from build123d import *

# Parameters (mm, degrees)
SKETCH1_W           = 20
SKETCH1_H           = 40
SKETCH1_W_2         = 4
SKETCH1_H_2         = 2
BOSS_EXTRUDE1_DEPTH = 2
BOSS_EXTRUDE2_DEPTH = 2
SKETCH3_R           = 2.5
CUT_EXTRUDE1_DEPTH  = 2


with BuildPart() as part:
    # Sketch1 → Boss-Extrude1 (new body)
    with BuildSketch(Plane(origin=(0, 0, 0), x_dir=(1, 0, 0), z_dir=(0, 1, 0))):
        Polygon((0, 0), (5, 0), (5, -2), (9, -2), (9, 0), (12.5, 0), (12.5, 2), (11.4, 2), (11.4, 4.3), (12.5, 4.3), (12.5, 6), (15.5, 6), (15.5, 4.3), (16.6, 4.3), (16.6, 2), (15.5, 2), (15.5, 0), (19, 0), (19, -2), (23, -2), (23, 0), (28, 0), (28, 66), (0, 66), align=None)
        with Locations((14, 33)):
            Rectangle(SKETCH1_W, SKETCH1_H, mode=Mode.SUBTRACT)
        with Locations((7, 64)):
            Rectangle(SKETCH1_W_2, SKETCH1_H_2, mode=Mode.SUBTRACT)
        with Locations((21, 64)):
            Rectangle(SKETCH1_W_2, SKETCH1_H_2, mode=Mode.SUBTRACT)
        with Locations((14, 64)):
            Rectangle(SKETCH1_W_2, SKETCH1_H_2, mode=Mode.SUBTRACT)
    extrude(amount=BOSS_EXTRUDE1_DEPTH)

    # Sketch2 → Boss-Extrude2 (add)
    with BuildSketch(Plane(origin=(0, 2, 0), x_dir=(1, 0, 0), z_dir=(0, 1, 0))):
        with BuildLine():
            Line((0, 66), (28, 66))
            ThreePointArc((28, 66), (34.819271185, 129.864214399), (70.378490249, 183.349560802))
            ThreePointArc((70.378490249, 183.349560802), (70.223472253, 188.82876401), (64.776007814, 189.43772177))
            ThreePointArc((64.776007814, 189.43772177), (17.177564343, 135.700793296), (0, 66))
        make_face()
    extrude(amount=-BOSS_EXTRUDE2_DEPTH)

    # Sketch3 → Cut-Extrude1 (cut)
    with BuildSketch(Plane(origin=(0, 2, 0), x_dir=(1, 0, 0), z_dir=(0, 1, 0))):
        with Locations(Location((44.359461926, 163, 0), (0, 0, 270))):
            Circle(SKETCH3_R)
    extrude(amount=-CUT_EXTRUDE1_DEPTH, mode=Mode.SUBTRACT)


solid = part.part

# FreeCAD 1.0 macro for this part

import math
import FreeCAD as App
import Part
import Sketcher
from FreeCAD import Vector


def add_polygon(sketch, points):
    """Adds a closed chain of lines whose ends are joined by coincident constraints."""
    first, n = sketch.GeometryCount, len(points)
    for a, b in zip(points, points[1:] + points[:1]):
        sketch.addGeometry(Part.LineSegment(App.Vector(*a, 0), App.Vector(*b, 0)), False)
    for i in range(n):
        sketch.addConstraint(Sketcher.Constraint("Coincident", first + i, 2, first + (i + 1) % n, 1))

doc = App.newDocument("Part")
params = doc.addObject("Spreadsheet::Sheet", "Params")
for row, (alias, value) in enumerate([
    ("sketch1_width", "5 mm"),
    ("sketch1_width2", "4 mm"),
    ("sketch1_width3", "3 mm"),
    ("sketch1_width4", "28 mm"),
    ("sketch1_width5", "20 mm"),
    ("pad1_length", "2 mm"),
    ("sketch2_radius", "135 mm"),
    ("sketch2_radius2", "150 mm"),
    ("sketch2_width", "28 mm"),
    ("pad2_length", "2 mm"),
    ("sketch3_diameter", "5 mm"),
    ("pocket1_length", "2 mm"),
], start=1):
    params.set(f"A{row}", alias)
    params.set(f"B{row}", "=" + value)
    params.setAlias(f"B{row}", alias)

body = doc.addObject("PartDesign::Body", "Body")

# Sketch on XZ plane
sketch1 = doc.addObject("Sketcher::SketchObject", "Sketch")
body.addObject(sketch1)
sketch1.AttachmentSupport = (doc.XZ_Plane, [""])
sketch1.MapMode = "FlatFace"
add_polygon(sketch1, [(0, 0), (5, 0), (5, 2), (9, 2), (9, 0), (12.5, 0), (12.5, -2), (11.4, -2), (11.4, -4.3), (12.5, -4.3), (12.5, -6), (15.5, -6), (15.5, -4.3), (16.6, -4.3), (16.6, -2), (15.5, -2), (15.5, 0), (19, 0), (19, 2), (23, 2), (23, 0), (28, 0), (28, -66), (0, -66)])  # lines 0-23
add_polygon(sketch1, [(24, -13), (4, -13), (4, -53), (24, -53)])  # lines 24-27
add_polygon(sketch1, [(9, -63), (5, -63), (5, -65), (9, -65)])  # lines 28-31
add_polygon(sketch1, [(16, -63), (12, -63), (12, -65), (16, -65)])  # lines 32-35
add_polygon(sketch1, [(23, -63), (19, -63), (19, -65), (23, -65)])  # lines 36-39
sketch1.addConstraint(Sketcher.Constraint("Horizontal", 0))
sketch1.addConstraint(Sketcher.Constraint("Vertical", 1))
sketch1.addConstraint(Sketcher.Constraint("Horizontal", 2))
sketch1.addConstraint(Sketcher.Constraint("Vertical", 3))
sketch1.addConstraint(Sketcher.Constraint("Horizontal", 4))
sketch1.addConstraint(Sketcher.Constraint("Vertical", 5))
sketch1.addConstraint(Sketcher.Constraint("Horizontal", 6))
sketch1.addConstraint(Sketcher.Constraint("Vertical", 7))
sketch1.addConstraint(Sketcher.Constraint("Horizontal", 8))
sketch1.addConstraint(Sketcher.Constraint("Vertical", 9))
sketch1.addConstraint(Sketcher.Constraint("Horizontal", 10))
sketch1.addConstraint(Sketcher.Constraint("Vertical", 11))
sketch1.addConstraint(Sketcher.Constraint("Horizontal", 12))
sketch1.addConstraint(Sketcher.Constraint("Vertical", 13))
sketch1.addConstraint(Sketcher.Constraint("Horizontal", 14))
sketch1.addConstraint(Sketcher.Constraint("Vertical", 15))
sketch1.addConstraint(Sketcher.Constraint("Horizontal", 16))
sketch1.addConstraint(Sketcher.Constraint("Vertical", 17))
sketch1.addConstraint(Sketcher.Constraint("Horizontal", 18))
sketch1.addConstraint(Sketcher.Constraint("Vertical", 19))
sketch1.addConstraint(Sketcher.Constraint("Horizontal", 20))
sketch1.addConstraint(Sketcher.Constraint("Vertical", 21))
sketch1.addConstraint(Sketcher.Constraint("Horizontal", 22))
sketch1.addConstraint(Sketcher.Constraint("Vertical", 23))
sketch1.addConstraint(Sketcher.Constraint("Horizontal", 24))
sketch1.addConstraint(Sketcher.Constraint("Vertical", 25))
sketch1.addConstraint(Sketcher.Constraint("Horizontal", 26))
sketch1.addConstraint(Sketcher.Constraint("Vertical", 27))
sketch1.addConstraint(Sketcher.Constraint("Horizontal", 28))
sketch1.addConstraint(Sketcher.Constraint("Vertical", 29))
sketch1.addConstraint(Sketcher.Constraint("Horizontal", 30))
sketch1.addConstraint(Sketcher.Constraint("Vertical", 31))
sketch1.addConstraint(Sketcher.Constraint("Horizontal", 32))
sketch1.addConstraint(Sketcher.Constraint("Vertical", 33))
sketch1.addConstraint(Sketcher.Constraint("Horizontal", 34))
sketch1.addConstraint(Sketcher.Constraint("Vertical", 35))
sketch1.addConstraint(Sketcher.Constraint("Horizontal", 36))
sketch1.addConstraint(Sketcher.Constraint("Vertical", 37))
sketch1.addConstraint(Sketcher.Constraint("Horizontal", 38))
sketch1.addConstraint(Sketcher.Constraint("Vertical", 39))
sketch1.addConstraint(Sketcher.Constraint("Coincident", 23, 2, -1, 1))
sketch1.addConstraint(Sketcher.Constraint("PointOnObject", 3, 2, -1))
sketch1.addConstraint(Sketcher.Constraint("PointOnObject", 15, 2, -1))
sketch1.addConstraint(Sketcher.Constraint("PointOnObject", 19, 2, -1))
sketch1.addConstraint(Sketcher.Constraint("Horizontal", 8, 2, 11, 2))
sketch1.addConstraint(Sketcher.Constraint("Horizontal", 6, 2, 13, 2))
sketch1.addConstraint(Sketcher.Constraint("Horizontal", 2, 2, 17, 2))
sketch1.addConstraint(Sketcher.Constraint("Horizontal", 31, 2, 32, 2))
sketch1.addConstraint(Sketcher.Constraint("Horizontal", 30, 2, 33, 2))
sketch1.addConstraint(Sketcher.Constraint("Horizontal", 35, 2, 36, 2))
sketch1.addConstraint(Sketcher.Constraint("Horizontal", 34, 2, 37, 2))
sketch1.addConstraint(Sketcher.Constraint("Vertical", 5, 2, 8, 2))
sketch1.addConstraint(Sketcher.Constraint("Vertical", 11, 2, 14, 2))
sketch1.addConstraint(Sketcher.Constraint("Vertical", 1, 2, 28, 2))
sketch1.addConstraint(Sketcher.Constraint("Vertical", 3, 2, 30, 2))
sketch1.addConstraint(Sketcher.Constraint("Vertical", 17, 2, 36, 2))
sketch1.addConstraint(Sketcher.Constraint("Vertical", 19, 2, 38, 2))
sketch1.addConstraint(Sketcher.Constraint("Equal", 8, 12))
sketch1.addConstraint(Sketcher.Constraint("Equal", 4, 16))
sketch1.addConstraint(Sketcher.Constraint("Equal", 2, 18))
sketch1.addConstraint(Sketcher.Constraint("Equal", 0, 20))
sketch1.addConstraint(Sketcher.Constraint("Equal", 30, 32))
sketch1.addConstraint(Sketcher.Constraint("Equal", 3, 5))
sketch1.addConstraint(Sketcher.Constraint("Equal", 19, 29))
sketch1.addConstraint(Sketcher.Constraint("DistanceX", 0, 1, 0, 2, 5.0))
sketch1.addConstraint(Sketcher.Constraint("DistanceX", 2, 1, 2, 2, 4.0))
sketch1.addConstraint(Sketcher.Constraint("DistanceX", 10, 1, 10, 2, 3.0))
sketch1.addConstraint(Sketcher.Constraint("DistanceX", 22, 2, 22, 1, 28.0))
sketch1.addConstraint(Sketcher.Constraint("DistanceX", 24, 2, 24, 1, 20.0))
sketch1.addConstraint(Sketcher.Constraint("DistanceY", 1, 1, 1, 2, 2.0))
sketch1.addConstraint(Sketcher.Constraint("DistanceY", 21, 2, 21, 1, 66.0))
sketch1.addConstraint(Sketcher.Constraint("DistanceY", 25, 2, 25, 1, 40.0))
sketch1.addConstraint(Sketcher.Constraint("DistanceX", 6, 2, 6, 1, 1.1))
sketch1.addConstraint(Sketcher.Constraint("DistanceY", 7, 2, 7, 1, 2.3))
sketch1.addConstraint(Sketcher.Constraint("DistanceY", 9, 2, 9, 1, 1.7))
sketch1.addConstraint(Sketcher.Constraint("DistanceX", -1, 1, 24, 2, 4.0))
sketch1.addConstraint(Sketcher.Constraint("DistanceY", 24, 2, -1, 1, 13.0))
sketch1.addConstraint(Sketcher.Constraint("DistanceY", 28, 2, -1, 1, 63.0))
sketch1.addConstraint(Sketcher.Constraint("DistanceX", -1, 1, 32, 2, 12.0))
sketch1.setExpression("Constraints[104]", "Params.sketch1_width")
sketch1.setExpression("Constraints[105]", "Params.sketch1_width2")
sketch1.setExpression("Constraints[106]", "Params.sketch1_width3")
sketch1.setExpression("Constraints[107]", "Params.sketch1_width4")
sketch1.setExpression("Constraints[108]", "Params.sketch1_width5")
pad1 = doc.addObject("PartDesign::Pad", "Pad")
body.addObject(pad1)
pad1.Profile = sketch1
pad1.setExpression("Length", "Params.pad1_length")
pad1.Reversed = True

# Sketch on XZ plane
sketch2 = doc.addObject("Sketcher::SketchObject", "Sketch001")
body.addObject(sketch2)
sketch2.AttachmentSupport = (doc.XZ_Plane, [""])
sketch2.MapMode = "FlatFace"
sketch2.AttachmentOffset = App.Placement(Vector(0, 0, -2), App.Rotation())
sketch2.addGeometry(Part.LineSegment(Vector(0, -66, 0), Vector(28, -66, 0)), False)
sketch2.addGeometry(Part.ArcOfCircle(Part.Circle(Vector(161.793266, -84.010049, 0), Vector(0, 0, 1), 135), math.radians(172.333441), math.radians(227.37894)), False)
sketch2.addGeometry(Part.ArcOfCircle(Part.Circle(Vector(67.149483, -186, 0), Vector(0, 0, 1), 4.177477), math.radians(-124.622013), math.radians(39.379892)), False)
sketch2.addGeometry(Part.ArcOfCircle(Part.Circle(Vector(150, -66, 0), Vector(0, 0, 1), 150), math.radians(180), math.radians(235.377987)), False)
sketch2.addConstraint(Sketcher.Constraint("Coincident", 0, 2, 1, 1))
sketch2.addConstraint(Sketcher.Constraint("Coincident", 1, 2, 2, 2))
sketch2.addConstraint(Sketcher.Constraint("Tangent", 2, 1, 3, 2))
sketch2.addConstraint(Sketcher.Constraint("Coincident", 3, 1, 0, 1))
sketch2.addConstraint(Sketcher.Constraint("Horizontal", 0))
sketch2.addConstraint(Sketcher.Constraint("PointOnObject", 3, 1, -2))
sketch2.addConstraint(Sketcher.Constraint("Horizontal", 3, 3, 0, 2))
sketch2.addConstraint(Sketcher.Constraint("Radius", 1, 135.0))
sketch2.addConstraint(Sketcher.Constraint("Radius", 3, 150.0))
sketch2.addConstraint(Sketcher.Constraint("DistanceX", 0, 1, 0, 2, 28.0))
sketch2.addConstraint(Sketcher.Constraint("DistanceY", 2, 3, -1, 1, 186.0))
sketch2.addConstraint(Sketcher.Constraint("DistanceY", 3, 3, -1, 1, 66.0))
sketch2.addConstraint(Sketcher.Constraint("Radius", 2, 4.177477))
sketch2.addConstraint(Sketcher.Constraint("DistanceY", 1, 3, -1, 1, 84.010049))
sketch2.setExpression("Constraints[7]", "Params.sketch2_radius")
sketch2.setExpression("Constraints[8]", "Params.sketch2_radius2")
sketch2.setExpression("Constraints[9]", "Params.sketch2_width")
pad2 = doc.addObject("PartDesign::Pad", "Pad001")
body.addObject(pad2)
pad2.Profile = sketch2
pad2.setExpression("Length", "Params.pad2_length")

# Sketch on XZ plane
sketch3 = doc.addObject("Sketcher::SketchObject", "Sketch002")
body.addObject(sketch3)
sketch3.AttachmentSupport = (doc.XZ_Plane, [""])
sketch3.MapMode = "FlatFace"
sketch3.AttachmentOffset = App.Placement(Vector(0, 0, -2), App.Rotation())
sketch3.addGeometry(Part.Circle(Vector(44.359462, -163, 0), Vector(0, 0, 1), 2.5), False)
sketch3.addConstraint(Sketcher.Constraint("Diameter", 0, 5.0))
sketch3.addConstraint(Sketcher.Constraint("DistanceY", 0, 3, -1, 1, 163.0))
sketch3.addConstraint(Sketcher.Constraint("DistanceX", -1, 1, 0, 3, 44.359462))
sketch3.setExpression("Constraints[0]", "Params.sketch3_diameter")
pocket1 = doc.addObject("PartDesign::Pocket", "Pocket")
body.addObject(pocket1)
pocket1.Profile = sketch3
pocket1.setExpression("Length", "Params.pocket1_length")
pocket1.Reversed = True

doc.recompute()
